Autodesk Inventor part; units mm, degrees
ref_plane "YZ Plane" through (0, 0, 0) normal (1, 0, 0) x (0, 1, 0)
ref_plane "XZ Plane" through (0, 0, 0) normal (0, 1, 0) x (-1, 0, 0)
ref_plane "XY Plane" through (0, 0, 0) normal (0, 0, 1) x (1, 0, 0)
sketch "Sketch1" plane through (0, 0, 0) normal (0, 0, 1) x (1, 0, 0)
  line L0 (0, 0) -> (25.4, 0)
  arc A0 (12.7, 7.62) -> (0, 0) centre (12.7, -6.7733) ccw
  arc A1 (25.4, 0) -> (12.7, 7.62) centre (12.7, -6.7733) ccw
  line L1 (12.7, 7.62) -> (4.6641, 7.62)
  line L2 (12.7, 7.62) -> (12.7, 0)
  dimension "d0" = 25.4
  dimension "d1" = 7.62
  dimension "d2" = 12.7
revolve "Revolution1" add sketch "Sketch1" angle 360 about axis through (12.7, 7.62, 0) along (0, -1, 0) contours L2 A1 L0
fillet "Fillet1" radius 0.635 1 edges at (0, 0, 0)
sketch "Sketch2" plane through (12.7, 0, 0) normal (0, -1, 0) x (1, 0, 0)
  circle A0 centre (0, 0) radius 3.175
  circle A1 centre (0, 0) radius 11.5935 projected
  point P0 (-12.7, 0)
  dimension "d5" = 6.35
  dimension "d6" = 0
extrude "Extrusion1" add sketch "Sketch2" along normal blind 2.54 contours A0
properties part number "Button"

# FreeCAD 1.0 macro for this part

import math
import FreeCAD as App
import Part
import Sketcher

V = App.Vector
Q = App.Units.Quantity


def edges_at(feature, points):
    """Names of the edges that pass closest to the given points."""
    edges = feature.Shape.Edges
    near = lambda p: min(range(len(edges)), key=lambda i: edges[i].distToShape(Part.Vertex(*p))[0])
    return sorted({f"Edge{near(p) + 1}" for p in points})

doc = App.newDocument("Part")
body = doc.addObject("PartDesign::Body", "Body")

sketch1 = body.newObject("Sketcher::SketchObject", "Sketch")
sketch1.AttachmentSupport = (doc.getObject("XY_Plane"), [""])
sketch1.MapMode = "FlatFace"
sketch1.addGeometry(Part.LineSegment(V(12.7, 7.62, 0), V(12.7, 0, 0)), False)
sketch1.addGeometry(Part.LineSegment(V(12.7, 0, 0), V(25.4, 0, 0)), False)
sketch1.addGeometry(Part.ArcOfCircle(Part.Circle(V(12.7, -6.7733, 0), V(0, 0, 1), 14.3933), math.radians(28.07237), math.radians(90)), False)
sketch1.addGeometry(Part.LineSegment(V(12.7, 7.62, 0), V(12.7, -6.7733, 0)), True)
sketch1.addConstraint(Sketcher.Constraint("Coincident", 0, 2, 1, 1))
sketch1.addConstraint(Sketcher.Constraint("Coincident", 1, 2, 2, 1))
sketch1.addConstraint(Sketcher.Constraint("Coincident", 2, 2, 0, 1))
sketch1.addConstraint(Sketcher.Constraint("Vertical", 0))
sketch1.addConstraint(Sketcher.Constraint("Horizontal", 1))
sketch1.addConstraint(Sketcher.Constraint("Vertical", 3))
sketch1.addConstraint(Sketcher.Constraint("Coincident", 3, 1, 2, 2))
sketch1.addConstraint(Sketcher.Constraint("Coincident", 3, 2, 2, 3))
sketch1.addConstraint(Sketcher.Constraint("PointOnObject", 0, 2, -1))
sketch1.addConstraint(Sketcher.Constraint("DistanceX", 1, 1, 1, 2, Q("0.5 in")))
sketch1.addConstraint(Sketcher.Constraint("DistanceY", 0, 2, 0, 1, Q("0.3 in")))
sketch1.addConstraint(Sketcher.Constraint("DistanceX", -1, 1, 1, 2, Q("1 in")))
revolution = body.newObject("PartDesign::Revolution", "Revolution")
revolution.Profile = sketch1
revolution.ReferenceAxis = (sketch1, ["Axis0"])
revolution.Angle = 360
doc.recompute()

fillet = body.newObject("PartDesign::Fillet", "Fillet")
fillet.Base = (revolution, edges_at(revolution, [(0, 0, 0)]))
fillet.Radius = Q("0.025 in")

sketch2 = body.newObject("Sketcher::SketchObject", "Sketch001")
sketch2.AttachmentSupport = (doc.getObject("XZ_Plane"), [""])
sketch2.MapMode = "FlatFace"
sketch2.addGeometry(Part.Circle(V(12.7, 0, 0), V(0, 0, 1), 3.175), False)
sketch2.addConstraint(Sketcher.Constraint("PointOnObject", 0, 3, -1))
sketch2.addConstraint(Sketcher.Constraint("Diameter", 0, Q("0.25 in")))
sketch2.addConstraint(Sketcher.Constraint("DistanceX", -1, 1, 0, 3, Q("0.5 in")))
pad1 = body.newObject("PartDesign::Pad", "Pad")
pad1.Profile = sketch2
pad1.Length = Q("0.1 in")

doc.recompute()
